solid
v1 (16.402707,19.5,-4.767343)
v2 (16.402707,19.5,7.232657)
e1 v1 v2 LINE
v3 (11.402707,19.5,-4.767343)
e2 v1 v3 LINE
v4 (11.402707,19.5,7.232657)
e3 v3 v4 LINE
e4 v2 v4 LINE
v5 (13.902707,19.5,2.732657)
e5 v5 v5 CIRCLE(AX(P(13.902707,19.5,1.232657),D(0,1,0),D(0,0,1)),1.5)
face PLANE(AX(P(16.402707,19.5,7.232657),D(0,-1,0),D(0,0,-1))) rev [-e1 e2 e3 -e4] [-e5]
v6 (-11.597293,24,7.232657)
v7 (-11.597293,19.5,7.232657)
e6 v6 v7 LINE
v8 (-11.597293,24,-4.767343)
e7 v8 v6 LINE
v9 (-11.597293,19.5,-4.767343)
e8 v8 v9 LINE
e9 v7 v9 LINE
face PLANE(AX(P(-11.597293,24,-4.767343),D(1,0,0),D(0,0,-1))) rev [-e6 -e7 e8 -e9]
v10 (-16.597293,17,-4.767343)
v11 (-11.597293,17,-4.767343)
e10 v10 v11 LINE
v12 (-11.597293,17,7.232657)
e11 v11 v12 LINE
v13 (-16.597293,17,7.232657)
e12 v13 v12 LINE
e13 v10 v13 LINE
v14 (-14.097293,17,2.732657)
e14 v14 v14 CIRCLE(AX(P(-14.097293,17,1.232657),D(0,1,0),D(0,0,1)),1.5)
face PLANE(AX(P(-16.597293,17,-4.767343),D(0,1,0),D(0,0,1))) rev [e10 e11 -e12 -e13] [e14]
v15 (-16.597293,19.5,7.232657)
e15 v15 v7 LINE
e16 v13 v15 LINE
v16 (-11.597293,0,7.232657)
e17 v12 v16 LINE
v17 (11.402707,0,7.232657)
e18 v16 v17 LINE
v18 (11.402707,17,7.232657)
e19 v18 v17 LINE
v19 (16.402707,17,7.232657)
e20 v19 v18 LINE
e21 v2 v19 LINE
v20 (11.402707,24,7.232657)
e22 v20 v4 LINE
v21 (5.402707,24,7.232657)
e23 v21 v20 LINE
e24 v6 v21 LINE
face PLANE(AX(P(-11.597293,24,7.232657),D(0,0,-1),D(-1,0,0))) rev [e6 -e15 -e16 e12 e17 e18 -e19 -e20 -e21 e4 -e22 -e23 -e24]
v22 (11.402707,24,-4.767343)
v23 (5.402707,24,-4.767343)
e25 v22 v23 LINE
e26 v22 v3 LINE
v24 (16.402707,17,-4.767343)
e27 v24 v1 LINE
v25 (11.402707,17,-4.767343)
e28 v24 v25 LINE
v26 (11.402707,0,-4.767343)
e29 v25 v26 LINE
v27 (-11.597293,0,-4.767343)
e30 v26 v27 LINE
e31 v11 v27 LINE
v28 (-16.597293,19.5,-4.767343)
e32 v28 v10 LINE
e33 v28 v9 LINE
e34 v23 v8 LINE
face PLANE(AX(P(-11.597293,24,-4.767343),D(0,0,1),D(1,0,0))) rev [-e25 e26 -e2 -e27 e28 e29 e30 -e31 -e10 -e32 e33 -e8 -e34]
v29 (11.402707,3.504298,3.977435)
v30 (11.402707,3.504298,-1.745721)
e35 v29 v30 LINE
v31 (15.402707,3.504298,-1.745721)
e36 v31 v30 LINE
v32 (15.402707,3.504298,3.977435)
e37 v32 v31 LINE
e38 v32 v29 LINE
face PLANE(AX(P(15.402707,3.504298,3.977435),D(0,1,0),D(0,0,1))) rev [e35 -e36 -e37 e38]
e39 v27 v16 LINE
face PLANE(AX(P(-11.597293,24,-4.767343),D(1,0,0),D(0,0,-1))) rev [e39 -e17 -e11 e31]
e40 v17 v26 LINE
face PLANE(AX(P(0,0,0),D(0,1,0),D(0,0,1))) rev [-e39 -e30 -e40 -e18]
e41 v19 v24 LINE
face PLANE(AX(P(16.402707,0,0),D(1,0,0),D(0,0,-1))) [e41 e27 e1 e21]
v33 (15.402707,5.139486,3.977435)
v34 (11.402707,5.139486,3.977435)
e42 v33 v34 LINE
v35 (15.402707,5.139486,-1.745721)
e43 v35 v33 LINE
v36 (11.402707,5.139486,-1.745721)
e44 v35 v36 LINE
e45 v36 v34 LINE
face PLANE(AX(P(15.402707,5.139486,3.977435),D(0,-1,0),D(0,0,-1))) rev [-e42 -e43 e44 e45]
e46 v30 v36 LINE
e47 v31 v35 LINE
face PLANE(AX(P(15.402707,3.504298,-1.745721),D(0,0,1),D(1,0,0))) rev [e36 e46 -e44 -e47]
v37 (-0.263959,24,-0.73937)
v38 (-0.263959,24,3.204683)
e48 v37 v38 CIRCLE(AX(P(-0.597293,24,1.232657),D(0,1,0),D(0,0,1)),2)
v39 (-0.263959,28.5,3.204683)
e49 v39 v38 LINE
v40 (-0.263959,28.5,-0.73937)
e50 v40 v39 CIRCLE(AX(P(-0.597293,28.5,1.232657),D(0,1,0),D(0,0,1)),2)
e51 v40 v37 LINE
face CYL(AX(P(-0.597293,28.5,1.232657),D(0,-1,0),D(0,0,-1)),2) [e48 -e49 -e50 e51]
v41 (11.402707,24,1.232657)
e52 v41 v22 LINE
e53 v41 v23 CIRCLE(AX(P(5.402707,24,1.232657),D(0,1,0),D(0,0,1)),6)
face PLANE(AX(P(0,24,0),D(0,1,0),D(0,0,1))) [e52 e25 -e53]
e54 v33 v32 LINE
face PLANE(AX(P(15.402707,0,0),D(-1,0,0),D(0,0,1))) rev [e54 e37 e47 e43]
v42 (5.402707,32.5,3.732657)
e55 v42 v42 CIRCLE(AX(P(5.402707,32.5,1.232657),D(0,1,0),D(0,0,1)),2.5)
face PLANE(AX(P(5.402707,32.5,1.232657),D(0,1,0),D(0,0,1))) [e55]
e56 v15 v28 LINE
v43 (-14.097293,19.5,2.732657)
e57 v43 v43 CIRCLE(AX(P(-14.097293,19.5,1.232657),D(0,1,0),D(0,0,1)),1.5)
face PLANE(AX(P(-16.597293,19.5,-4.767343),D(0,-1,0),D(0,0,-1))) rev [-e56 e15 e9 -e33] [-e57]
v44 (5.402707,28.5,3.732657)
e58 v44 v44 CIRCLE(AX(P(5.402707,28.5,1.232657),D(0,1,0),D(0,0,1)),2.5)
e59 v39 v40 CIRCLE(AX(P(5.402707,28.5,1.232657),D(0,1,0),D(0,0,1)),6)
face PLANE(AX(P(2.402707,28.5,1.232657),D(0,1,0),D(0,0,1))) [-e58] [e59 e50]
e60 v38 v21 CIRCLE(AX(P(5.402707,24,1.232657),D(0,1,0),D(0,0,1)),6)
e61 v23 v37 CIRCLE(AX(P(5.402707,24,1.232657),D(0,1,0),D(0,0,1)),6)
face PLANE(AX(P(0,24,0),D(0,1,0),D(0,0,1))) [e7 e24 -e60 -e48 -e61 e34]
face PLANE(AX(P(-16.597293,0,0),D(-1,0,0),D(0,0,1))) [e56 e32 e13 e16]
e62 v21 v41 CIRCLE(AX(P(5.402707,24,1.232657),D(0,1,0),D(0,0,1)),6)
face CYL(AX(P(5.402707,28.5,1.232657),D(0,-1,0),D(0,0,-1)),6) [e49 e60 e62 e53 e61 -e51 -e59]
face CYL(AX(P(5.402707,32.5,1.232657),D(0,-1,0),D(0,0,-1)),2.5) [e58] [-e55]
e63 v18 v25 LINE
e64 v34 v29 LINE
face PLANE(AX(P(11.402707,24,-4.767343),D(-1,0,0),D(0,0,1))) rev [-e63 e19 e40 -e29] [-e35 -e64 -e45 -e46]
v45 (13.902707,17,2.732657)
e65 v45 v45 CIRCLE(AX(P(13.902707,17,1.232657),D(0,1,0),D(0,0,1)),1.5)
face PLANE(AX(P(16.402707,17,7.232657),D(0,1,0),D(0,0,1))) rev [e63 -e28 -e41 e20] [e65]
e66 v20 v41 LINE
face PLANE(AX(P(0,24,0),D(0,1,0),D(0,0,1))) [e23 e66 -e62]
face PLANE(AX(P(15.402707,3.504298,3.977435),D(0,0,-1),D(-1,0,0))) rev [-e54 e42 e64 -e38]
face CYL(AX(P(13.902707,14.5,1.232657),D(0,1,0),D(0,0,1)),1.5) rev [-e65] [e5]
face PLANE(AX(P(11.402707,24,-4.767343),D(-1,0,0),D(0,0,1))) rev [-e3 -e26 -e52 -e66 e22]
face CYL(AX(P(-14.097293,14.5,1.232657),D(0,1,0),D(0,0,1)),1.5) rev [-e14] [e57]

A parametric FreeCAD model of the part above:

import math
import FreeCAD as App
import Part
import Sketcher

V = App.Vector

doc = App.newDocument("Part")
body = doc.addObject("PartDesign::Body", "Body")

# Sketch on XZ plane
sketch1 = doc.addObject("Sketcher::SketchObject", "Sketch")
body.addObject(sketch1)
sketch1.AttachmentSupport = (doc.XZ_Plane, [""])
sketch1.MapMode = "FlatFace"
sketch1.addGeometry([
    Part.LineSegment(V(-12, -5, 0), V(-12, 7, 0)),
    Part.LineSegment(V(-12, 7, 0), V(11, 7, 0)),
    Part.LineSegment(V(11, 7, 0), V(11, -5, 0)),
    Part.LineSegment(V(11, -5, 0), V(-12, -5, 0)),
], False)
sketch1.addConstraint([
    Sketcher.Constraint("Coincident", 0, 2, 1, 1),
    Sketcher.Constraint("Coincident", 1, 2, 2, 1),
    Sketcher.Constraint("Coincident", 2, 2, 3, 1),
    Sketcher.Constraint("Coincident", 3, 2, 0, 1),
    Sketcher.Constraint("Vertical", 0),
    Sketcher.Constraint("Horizontal", 1),
    Sketcher.Constraint("Vertical", 2),
    Sketcher.Constraint("Horizontal", 3),
    Sketcher.Constraint("DistanceX", 1, 1, 1, 2, 23.0),
    Sketcher.Constraint("DistanceY", 0, 1, 0, 2, 12.0),
    Sketcher.Constraint("DistanceX", 0, 2, -1, 1, 11.597293),
    Sketcher.Constraint("DistanceY", -1, 1, 0, 2, 7.232657),
])
pad1 = doc.addObject("PartDesign::Pad", "Pad")
body.addObject(pad1)
pad1.Profile = sketch1
pad1.Length = 24
pad1.Reversed = True

# Sketch on XZ plane
sketch2 = doc.addObject("Sketcher::SketchObject", "Sketch001")
body.addObject(sketch2)
sketch2.AttachmentSupport = (doc.XZ_Plane, [""])
sketch2.MapMode = "FlatFace"
sketch2.AttachmentOffset = App.Placement(V(0, 0, -24), App.Rotation())
sketch2.addGeometry([
    Part.ArcOfCircle(Part.Circle(V(5.4, 1.2, 0), V(0, 0, 1), 6), math.radians(-161), math.radians(161)),
    Part.ArcOfCircle(Part.Circle(V(-0.6, 1.2, 0), V(0, 0, 1), 2), math.radians(80), math.radians(280)),
], False)
sketch2.addConstraint([
    Sketcher.Constraint("Coincident", 0, 1, 1, 2),
    Sketcher.Constraint("Coincident", 1, 1, 0, 2),
    Sketcher.Constraint("Horizontal", 0, 3, 1, 3),
    Sketcher.Constraint("Radius", 0, 6.0),
    Sketcher.Constraint("Radius", 1, 2.0),
    Sketcher.Constraint("DistanceX", 1, 3, 0, 3, 6.0),
    Sketcher.Constraint("DistanceX", 0, 1, -1, 1, 0.263959),
    Sketcher.Constraint("DistanceY", 0, 1, -1, 1, 0.73937),
])
pad2 = doc.addObject("PartDesign::Pad", "Pad001")
body.addObject(pad2)
pad2.Profile = sketch2
pad2.Length = 4.5
pad2.Reversed = True

# Sketch on XZ plane
sketch3 = doc.addObject("Sketcher::SketchObject", "Sketch002")
body.addObject(sketch3)
sketch3.AttachmentSupport = (doc.XZ_Plane, [""])
sketch3.MapMode = "FlatFace"
sketch3.AttachmentOffset = App.Placement(V(0, 0, -28.5), App.Rotation())
sketch3.addGeometry(Part.Circle(V(5.4, 1.2, 0), V(0, 0, 1), 2.5), False)
sketch3.addConstraint([
    Sketcher.Constraint("Diameter", 0, 5.0),
    Sketcher.Constraint("DistanceX", -1, 1, 0, 3, 5.402707),
    Sketcher.Constraint("DistanceY", -1, 1, 0, 3, 1.232657),
])
pad3 = doc.addObject("PartDesign::Pad", "Pad002")
body.addObject(pad3)
pad3.Profile = sketch3
pad3.Length = 4
pad3.Reversed = True

# Sketch on YZ plane
sketch4 = doc.addObject("Sketcher::SketchObject", "Sketch003")
body.addObject(sketch4)
sketch4.AttachmentSupport = (doc.YZ_Plane, [""])
sketch4.MapMode = "FlatFace"
sketch4.AttachmentOffset = App.Placement(V(0, 0, 11.402707), App.Rotation())
sketch4.addGeometry([
    Part.LineSegment(V(19.5, 7.2, 0), V(17, 7.2, 0)),
    Part.LineSegment(V(17, 7.2, 0), V(17, -4.8, 0)),
    Part.LineSegment(V(17, -4.8, 0), V(19.5, -4.8, 0)),
    Part.LineSegment(V(19.5, -4.8, 0), V(19.5, 7.2, 0)),
], False)
sketch4.addConstraint([
    Sketcher.Constraint("Coincident", 0, 2, 1, 1),
    Sketcher.Constraint("Coincident", 1, 2, 2, 1),
    Sketcher.Constraint("Coincident", 2, 2, 3, 1),
    Sketcher.Constraint("Coincident", 3, 2, 0, 1),
    Sketcher.Constraint("Horizontal", 0),
    Sketcher.Constraint("Vertical", 1),
    Sketcher.Constraint("Horizontal", 2),
    Sketcher.Constraint("Vertical", 3),
    Sketcher.Constraint("DistanceY", 1, 2, 1, 1, 12.0),
    Sketcher.Constraint("DistanceX", 0, 2, 0, 1, 2.5),
    Sketcher.Constraint("DistanceX", -1, 1, 0, 2, 17.0),
    Sketcher.Constraint("DistanceY", -1, 1, 0, 2, 7.232657),
])
pad4 = doc.addObject("PartDesign::Pad", "Pad003")
body.addObject(pad4)
pad4.Profile = sketch4
pad4.Length = 5

# Sketch on YZ plane
sketch5 = doc.addObject("Sketcher::SketchObject", "Sketch004")
body.addObject(sketch5)
sketch5.AttachmentSupport = (doc.YZ_Plane, [""])
sketch5.MapMode = "FlatFace"
sketch5.AttachmentOffset = App.Placement(V(0, 0, -11.597293), App.Rotation())
sketch5.addGeometry([
    Part.LineSegment(V(19.5, -4.8, 0), V(17, -4.8, 0)),
    Part.LineSegment(V(17, -4.8, 0), V(17, 7.2, 0)),
    Part.LineSegment(V(17, 7.2, 0), V(19.5, 7.2, 0)),
    Part.LineSegment(V(19.5, 7.2, 0), V(19.5, -4.8, 0)),
], False)
sketch5.addConstraint([
    Sketcher.Constraint("Coincident", 0, 2, 1, 1),
    Sketcher.Constraint("Coincident", 1, 2, 2, 1),
    Sketcher.Constraint("Coincident", 2, 2, 3, 1),
    Sketcher.Constraint("Coincident", 3, 2, 0, 1),
    Sketcher.Constraint("Horizontal", 0),
    Sketcher.Constraint("Vertical", 1),
    Sketcher.Constraint("Horizontal", 2),
    Sketcher.Constraint("Vertical", 3),
    Sketcher.Constraint("DistanceY", 1, 1, 1, 2, 12.0),
    Sketcher.Constraint("DistanceX", 0, 2, 0, 1, 2.5),
    Sketcher.Constraint("DistanceX", -1, 1, 0, 2, 17.0),
    Sketcher.Constraint("DistanceY", 0, 2, -1, 1, 4.767343),
])
pad5 = doc.addObject("PartDesign::Pad", "Pad004")
body.addObject(pad5)
pad5.Profile = sketch5
pad5.Length = 5
pad5.Reversed = True

# Sketch on XZ plane
sketch6 = doc.addObject("Sketcher::SketchObject", "Sketch005")
body.addObject(sketch6)
sketch6.AttachmentSupport = (doc.XZ_Plane, [""])
sketch6.MapMode = "FlatFace"
sketch6.AttachmentOffset = App.Placement(V(0, 0, -19.5), App.Rotation())
sketch6.addGeometry([
    Part.Circle(V(-14.1, 1.2, 0), V(0, 0, 1), 1.5),
    Part.Circle(V(13.9, 1.2, 0), V(0, 0, 1), 1.5),
], False)
sketch6.addConstraint([
    Sketcher.Constraint("Equal", 0, 1),
    Sketcher.Constraint("Horizontal", 0, 3, 1, 3),
    Sketcher.Constraint("Diameter", 0, 3.0),
    Sketcher.Constraint("DistanceX", 0, 3, 1, 3, 28.0),
    Sketcher.Constraint("DistanceX", 0, 3, -1, 1, 14.097293),
    Sketcher.Constraint("DistanceY", -1, 1, 0, 3, 1.232657),
])
pocket1 = doc.addObject("PartDesign::Pocket", "Pocket")
body.addObject(pocket1)
pocket1.Profile = sketch6
pocket1.Length = 5
pocket1.Reversed = True

# Sketch on YZ plane
sketch7 = doc.addObject("Sketcher::SketchObject", "Sketch006")
body.addObject(sketch7)
sketch7.AttachmentSupport = (doc.YZ_Plane, [""])
sketch7.MapMode = "FlatFace"
sketch7.AttachmentOffset = App.Placement(V(0, 0, 11.402707), App.Rotation())
sketch7.addGeometry([
    Part.LineSegment(V(5.1, 4, 0), V(3.5, 4, 0)),
    Part.LineSegment(V(3.5, 4, 0), V(3.5, -1.7, 0)),
    Part.LineSegment(V(3.5, -1.7, 0), V(5.1, -1.7, 0)),
    Part.LineSegment(V(5.1, -1.7, 0), V(5.1, 4, 0)),
], False)
sketch7.addConstraint([
    Sketcher.Constraint("Coincident", 0, 2, 1, 1),
    Sketcher.Constraint("Coincident", 1, 2, 2, 1),
    Sketcher.Constraint("Coincident", 2, 2, 3, 1),
    Sketcher.Constraint("Coincident", 3, 2, 0, 1),
    Sketcher.Constraint("Horizontal", 0),
    Sketcher.Constraint("Vertical", 1),
    Sketcher.Constraint("Horizontal", 2),
    Sketcher.Constraint("Vertical", 3),
    Sketcher.Constraint("DistanceX", -1, 1, 0, 2, 3.504298),
    Sketcher.Constraint("DistanceX", 0, 2, 0, 1, 1.635187),
    Sketcher.Constraint("DistanceY", 1, 2, 1, 1, 5.723156),
    Sketcher.Constraint("DistanceY", 1, 2, -1, 1, 1.745721),
])
pad6 = doc.addObject("PartDesign::Pad", "Pad005")
body.addObject(pad6)
pad6.Profile = sketch7
pad6.Length = 4

doc.recompute()
